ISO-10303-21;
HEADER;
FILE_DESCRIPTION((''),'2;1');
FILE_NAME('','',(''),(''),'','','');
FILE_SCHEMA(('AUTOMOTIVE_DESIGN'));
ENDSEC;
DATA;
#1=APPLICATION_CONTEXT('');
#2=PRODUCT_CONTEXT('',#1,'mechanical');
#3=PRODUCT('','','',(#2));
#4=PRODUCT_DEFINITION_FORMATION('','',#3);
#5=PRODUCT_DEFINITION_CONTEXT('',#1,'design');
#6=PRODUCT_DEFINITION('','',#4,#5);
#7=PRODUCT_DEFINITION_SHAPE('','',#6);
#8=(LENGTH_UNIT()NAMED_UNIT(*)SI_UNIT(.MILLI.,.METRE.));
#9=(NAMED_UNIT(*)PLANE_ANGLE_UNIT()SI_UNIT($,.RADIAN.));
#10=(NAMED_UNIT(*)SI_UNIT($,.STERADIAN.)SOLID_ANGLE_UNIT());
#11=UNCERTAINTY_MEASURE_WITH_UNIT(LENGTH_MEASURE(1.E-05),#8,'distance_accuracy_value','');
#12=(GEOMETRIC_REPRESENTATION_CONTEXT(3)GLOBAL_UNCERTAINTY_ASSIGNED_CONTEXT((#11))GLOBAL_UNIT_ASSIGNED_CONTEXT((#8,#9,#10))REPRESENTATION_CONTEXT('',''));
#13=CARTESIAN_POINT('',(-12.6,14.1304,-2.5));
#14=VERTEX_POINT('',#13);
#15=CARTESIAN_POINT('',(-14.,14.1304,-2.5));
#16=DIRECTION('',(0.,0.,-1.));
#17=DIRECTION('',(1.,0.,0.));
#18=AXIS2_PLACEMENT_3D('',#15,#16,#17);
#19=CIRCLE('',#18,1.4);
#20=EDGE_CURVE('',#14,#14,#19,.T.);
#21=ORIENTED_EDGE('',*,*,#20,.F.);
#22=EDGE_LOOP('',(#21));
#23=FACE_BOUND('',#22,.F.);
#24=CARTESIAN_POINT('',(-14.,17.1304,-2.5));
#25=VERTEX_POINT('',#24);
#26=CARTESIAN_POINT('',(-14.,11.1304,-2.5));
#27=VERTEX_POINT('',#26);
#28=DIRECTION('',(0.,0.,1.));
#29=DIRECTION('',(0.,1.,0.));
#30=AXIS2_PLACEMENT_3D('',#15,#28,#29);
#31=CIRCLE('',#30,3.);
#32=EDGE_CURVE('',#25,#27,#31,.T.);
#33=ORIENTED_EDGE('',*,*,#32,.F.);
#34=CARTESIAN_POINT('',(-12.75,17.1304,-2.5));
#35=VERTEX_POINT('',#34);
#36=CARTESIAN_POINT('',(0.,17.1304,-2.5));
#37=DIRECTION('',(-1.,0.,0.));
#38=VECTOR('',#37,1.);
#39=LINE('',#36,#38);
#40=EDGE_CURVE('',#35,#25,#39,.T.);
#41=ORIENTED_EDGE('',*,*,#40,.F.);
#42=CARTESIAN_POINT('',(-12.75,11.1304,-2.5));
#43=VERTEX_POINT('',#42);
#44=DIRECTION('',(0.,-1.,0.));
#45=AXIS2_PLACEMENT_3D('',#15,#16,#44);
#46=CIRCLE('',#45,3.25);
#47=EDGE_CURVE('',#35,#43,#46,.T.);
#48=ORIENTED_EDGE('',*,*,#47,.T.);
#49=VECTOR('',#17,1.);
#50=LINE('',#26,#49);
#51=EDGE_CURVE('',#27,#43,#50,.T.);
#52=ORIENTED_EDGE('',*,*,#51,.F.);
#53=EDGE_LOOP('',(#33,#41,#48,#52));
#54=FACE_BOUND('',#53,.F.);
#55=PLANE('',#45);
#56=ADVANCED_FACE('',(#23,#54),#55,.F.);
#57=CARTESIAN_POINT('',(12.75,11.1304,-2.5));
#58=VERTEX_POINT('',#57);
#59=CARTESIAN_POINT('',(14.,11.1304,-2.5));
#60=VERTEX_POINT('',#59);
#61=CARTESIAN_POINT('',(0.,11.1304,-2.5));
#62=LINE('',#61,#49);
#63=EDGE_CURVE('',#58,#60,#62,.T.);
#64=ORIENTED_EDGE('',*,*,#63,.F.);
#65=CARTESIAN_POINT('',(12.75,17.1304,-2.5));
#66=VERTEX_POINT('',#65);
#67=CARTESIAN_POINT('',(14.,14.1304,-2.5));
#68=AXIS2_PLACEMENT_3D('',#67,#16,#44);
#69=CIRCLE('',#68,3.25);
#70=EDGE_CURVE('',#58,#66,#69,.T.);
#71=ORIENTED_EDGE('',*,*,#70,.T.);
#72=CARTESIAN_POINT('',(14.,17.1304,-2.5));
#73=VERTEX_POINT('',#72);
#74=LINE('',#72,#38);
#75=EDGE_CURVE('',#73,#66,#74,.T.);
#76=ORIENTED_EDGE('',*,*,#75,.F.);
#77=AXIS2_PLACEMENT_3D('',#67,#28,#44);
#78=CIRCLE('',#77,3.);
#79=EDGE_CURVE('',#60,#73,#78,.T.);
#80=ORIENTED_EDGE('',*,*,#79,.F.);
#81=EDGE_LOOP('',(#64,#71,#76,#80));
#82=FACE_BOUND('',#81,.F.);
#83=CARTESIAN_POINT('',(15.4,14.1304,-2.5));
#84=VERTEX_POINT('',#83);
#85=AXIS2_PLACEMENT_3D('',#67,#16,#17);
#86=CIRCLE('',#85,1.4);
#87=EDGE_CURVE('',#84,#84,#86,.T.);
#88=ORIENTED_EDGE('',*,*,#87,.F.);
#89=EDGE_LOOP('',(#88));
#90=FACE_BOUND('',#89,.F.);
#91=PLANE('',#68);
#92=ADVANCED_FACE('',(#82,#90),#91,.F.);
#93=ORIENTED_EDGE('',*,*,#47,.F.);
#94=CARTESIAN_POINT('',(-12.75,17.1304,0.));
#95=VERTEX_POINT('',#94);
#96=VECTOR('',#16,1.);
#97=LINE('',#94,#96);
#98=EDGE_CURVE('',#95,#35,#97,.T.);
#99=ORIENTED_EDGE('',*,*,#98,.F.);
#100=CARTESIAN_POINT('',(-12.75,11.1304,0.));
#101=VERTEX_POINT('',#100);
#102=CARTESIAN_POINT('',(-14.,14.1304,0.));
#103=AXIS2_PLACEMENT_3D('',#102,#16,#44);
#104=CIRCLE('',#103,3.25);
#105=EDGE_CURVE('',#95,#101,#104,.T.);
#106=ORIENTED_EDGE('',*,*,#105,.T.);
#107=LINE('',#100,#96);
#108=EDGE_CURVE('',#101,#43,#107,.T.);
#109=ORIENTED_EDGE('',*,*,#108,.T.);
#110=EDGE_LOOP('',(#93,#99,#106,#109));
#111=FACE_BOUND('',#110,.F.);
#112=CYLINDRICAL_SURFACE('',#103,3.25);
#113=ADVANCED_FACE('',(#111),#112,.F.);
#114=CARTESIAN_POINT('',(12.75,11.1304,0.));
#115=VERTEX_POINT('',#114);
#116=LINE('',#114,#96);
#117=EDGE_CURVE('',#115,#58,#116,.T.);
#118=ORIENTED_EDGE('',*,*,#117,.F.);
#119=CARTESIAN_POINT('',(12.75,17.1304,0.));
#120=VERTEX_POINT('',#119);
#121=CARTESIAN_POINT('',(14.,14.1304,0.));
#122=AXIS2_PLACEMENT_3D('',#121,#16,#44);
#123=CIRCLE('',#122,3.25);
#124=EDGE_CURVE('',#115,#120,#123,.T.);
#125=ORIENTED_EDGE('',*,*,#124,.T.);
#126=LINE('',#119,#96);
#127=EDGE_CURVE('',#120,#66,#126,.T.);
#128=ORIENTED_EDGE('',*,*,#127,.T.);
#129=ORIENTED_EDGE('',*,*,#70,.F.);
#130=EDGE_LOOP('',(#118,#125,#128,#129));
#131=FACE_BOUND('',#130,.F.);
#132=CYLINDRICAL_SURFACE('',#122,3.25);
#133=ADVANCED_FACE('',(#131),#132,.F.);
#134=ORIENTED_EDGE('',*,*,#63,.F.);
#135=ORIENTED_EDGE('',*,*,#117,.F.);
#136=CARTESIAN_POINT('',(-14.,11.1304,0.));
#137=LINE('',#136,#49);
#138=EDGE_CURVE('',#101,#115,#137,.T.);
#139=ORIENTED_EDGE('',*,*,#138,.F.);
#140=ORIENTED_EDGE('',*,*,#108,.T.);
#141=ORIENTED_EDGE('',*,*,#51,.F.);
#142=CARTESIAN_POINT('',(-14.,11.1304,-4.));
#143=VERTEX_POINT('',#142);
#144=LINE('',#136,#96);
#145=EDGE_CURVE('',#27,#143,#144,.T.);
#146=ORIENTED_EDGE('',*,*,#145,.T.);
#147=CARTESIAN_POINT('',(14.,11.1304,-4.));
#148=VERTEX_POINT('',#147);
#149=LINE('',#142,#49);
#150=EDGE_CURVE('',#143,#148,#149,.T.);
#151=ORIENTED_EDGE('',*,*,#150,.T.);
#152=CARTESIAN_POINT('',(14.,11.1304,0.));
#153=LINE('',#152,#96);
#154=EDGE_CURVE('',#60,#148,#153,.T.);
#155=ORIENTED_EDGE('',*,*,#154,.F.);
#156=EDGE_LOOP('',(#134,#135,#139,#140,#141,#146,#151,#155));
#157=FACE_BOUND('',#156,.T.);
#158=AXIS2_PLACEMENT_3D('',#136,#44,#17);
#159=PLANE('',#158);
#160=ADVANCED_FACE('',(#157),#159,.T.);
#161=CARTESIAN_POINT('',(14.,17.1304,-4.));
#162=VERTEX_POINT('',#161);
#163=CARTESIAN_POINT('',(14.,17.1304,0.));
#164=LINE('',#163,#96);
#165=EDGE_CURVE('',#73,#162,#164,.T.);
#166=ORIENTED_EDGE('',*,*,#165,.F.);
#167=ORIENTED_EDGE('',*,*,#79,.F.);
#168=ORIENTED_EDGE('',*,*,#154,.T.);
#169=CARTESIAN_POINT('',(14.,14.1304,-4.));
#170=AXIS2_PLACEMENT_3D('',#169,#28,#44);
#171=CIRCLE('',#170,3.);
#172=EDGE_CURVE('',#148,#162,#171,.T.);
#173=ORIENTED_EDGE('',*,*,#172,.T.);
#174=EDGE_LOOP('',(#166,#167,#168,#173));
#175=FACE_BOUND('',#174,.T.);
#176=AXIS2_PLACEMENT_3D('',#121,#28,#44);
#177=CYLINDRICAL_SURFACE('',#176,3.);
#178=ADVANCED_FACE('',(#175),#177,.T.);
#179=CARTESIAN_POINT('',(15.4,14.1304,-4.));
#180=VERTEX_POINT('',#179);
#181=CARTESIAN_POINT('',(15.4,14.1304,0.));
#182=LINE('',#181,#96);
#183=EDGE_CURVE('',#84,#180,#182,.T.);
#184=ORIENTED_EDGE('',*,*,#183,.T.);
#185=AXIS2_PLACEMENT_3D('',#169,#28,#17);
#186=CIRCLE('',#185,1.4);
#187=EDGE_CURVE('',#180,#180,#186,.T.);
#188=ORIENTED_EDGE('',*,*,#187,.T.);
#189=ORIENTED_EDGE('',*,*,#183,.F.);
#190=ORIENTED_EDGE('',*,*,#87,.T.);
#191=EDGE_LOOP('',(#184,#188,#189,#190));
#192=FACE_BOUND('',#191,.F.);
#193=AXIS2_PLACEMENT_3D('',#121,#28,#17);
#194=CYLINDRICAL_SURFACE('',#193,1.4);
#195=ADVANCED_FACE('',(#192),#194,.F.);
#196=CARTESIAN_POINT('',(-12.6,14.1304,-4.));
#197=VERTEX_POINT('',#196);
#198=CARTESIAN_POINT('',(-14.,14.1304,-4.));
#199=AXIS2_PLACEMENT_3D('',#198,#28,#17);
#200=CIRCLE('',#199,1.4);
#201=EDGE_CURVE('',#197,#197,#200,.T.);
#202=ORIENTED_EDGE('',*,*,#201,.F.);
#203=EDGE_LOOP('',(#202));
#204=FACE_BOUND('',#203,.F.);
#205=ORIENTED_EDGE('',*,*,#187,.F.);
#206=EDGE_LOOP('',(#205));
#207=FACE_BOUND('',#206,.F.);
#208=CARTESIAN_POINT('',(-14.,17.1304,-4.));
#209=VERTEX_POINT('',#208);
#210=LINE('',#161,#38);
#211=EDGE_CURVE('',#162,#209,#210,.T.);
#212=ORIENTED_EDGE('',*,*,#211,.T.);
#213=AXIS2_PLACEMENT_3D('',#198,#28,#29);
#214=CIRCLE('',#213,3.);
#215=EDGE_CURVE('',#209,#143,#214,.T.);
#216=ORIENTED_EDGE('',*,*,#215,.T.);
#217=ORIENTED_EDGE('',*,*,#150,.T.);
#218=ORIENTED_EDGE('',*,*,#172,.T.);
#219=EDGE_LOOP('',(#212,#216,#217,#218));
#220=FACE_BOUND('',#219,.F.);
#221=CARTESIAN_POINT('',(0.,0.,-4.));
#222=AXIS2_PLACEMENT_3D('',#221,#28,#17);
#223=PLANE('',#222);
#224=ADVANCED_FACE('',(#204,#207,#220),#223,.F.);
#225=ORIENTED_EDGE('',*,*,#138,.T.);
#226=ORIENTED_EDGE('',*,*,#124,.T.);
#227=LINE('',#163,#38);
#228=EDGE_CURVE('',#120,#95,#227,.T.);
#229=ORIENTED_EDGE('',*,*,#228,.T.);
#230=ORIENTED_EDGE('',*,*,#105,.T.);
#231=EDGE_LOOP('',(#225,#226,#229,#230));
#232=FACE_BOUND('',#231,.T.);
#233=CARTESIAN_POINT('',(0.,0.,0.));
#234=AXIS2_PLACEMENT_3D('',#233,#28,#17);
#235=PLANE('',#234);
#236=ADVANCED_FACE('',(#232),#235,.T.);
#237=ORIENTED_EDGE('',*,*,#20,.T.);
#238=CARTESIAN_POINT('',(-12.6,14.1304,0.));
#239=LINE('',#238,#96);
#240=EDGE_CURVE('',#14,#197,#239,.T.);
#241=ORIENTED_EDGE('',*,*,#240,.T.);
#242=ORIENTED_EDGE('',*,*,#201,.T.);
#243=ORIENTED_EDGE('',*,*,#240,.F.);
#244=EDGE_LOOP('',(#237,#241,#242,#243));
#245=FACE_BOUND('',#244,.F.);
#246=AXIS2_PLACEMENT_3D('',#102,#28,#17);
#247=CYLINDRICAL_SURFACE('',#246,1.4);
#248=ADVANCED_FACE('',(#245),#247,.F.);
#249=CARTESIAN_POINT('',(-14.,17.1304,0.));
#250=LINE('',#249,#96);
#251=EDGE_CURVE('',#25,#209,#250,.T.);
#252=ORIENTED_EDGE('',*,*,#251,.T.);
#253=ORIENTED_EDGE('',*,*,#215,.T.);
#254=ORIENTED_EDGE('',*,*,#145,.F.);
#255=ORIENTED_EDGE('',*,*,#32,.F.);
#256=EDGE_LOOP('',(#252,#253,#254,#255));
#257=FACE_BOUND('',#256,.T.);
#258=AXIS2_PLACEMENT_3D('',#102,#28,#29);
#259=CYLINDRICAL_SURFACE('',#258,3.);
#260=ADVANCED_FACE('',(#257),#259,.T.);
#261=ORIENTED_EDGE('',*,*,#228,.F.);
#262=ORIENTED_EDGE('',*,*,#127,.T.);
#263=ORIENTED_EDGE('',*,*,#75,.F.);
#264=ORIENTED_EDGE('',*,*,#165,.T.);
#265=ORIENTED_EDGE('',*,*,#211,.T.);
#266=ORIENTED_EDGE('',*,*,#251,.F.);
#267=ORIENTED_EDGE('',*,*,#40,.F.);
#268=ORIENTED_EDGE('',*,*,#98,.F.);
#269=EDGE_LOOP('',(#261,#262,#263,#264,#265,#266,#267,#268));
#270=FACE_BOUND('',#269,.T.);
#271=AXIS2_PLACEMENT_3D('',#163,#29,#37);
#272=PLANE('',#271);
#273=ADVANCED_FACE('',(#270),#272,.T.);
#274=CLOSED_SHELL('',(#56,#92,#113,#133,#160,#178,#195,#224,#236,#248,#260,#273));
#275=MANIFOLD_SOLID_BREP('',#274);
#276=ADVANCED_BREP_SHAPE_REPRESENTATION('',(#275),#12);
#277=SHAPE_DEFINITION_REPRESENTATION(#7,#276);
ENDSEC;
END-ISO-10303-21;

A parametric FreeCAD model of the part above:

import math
import FreeCAD as App
import Part
import Sketcher
Q = App.Units.Quantity

doc = App.newDocument("Part")
body = doc.addObject("PartDesign::Body", "Body")

sketch1 = body.newObject("Sketcher::SketchObject", "Sketch")
sketch1.AttachmentSupport = (doc.getObject("XY_Plane"), [""])
sketch1.MapMode = "FlatFace"
sketch1.addGeometry(Part.ArcOfCircle(Part.Circle(App.Vector(-14, 14.1, 0), App.Vector(0, 0, 1), 3), math.radians(90), math.radians(270)), False)
sketch1.addGeometry(Part.LineSegment(App.Vector(-14, 11.1, 0), App.Vector(14, 11.1, 0)), False)
sketch1.addGeometry(Part.ArcOfCircle(Part.Circle(App.Vector(14, 14.1, 0), App.Vector(0, 0, 1), 3), math.radians(-90), math.radians(90)), False)
sketch1.addGeometry(Part.LineSegment(App.Vector(14, 17.1, 0), App.Vector(-14, 17.1, 0)), False)
sketch1.addGeometry(Part.Circle(App.Vector(-14, 14.1, 0), App.Vector(0, 0, 1), 1.4), False)
sketch1.addGeometry(Part.Circle(App.Vector(14, 14.1, 0), App.Vector(0, 0, 1), 1.4), False)
sketch1.addConstraint(Sketcher.Constraint("Tangent", 0, 2, 1, 1))
sketch1.addConstraint(Sketcher.Constraint("Tangent", 1, 2, 2, 1))
sketch1.addConstraint(Sketcher.Constraint("Tangent", 2, 2, 3, 1))
sketch1.addConstraint(Sketcher.Constraint("Tangent", 3, 2, 0, 1))
sketch1.addConstraint(Sketcher.Constraint("Horizontal", 1))
sketch1.addConstraint(Sketcher.Constraint("Horizontal", 3))
sketch1.addConstraint(Sketcher.Constraint("Coincident", 4, 3, 0, 3))
sketch1.addConstraint(Sketcher.Constraint("Coincident", 5, 3, 2, 3))
sketch1.addConstraint(Sketcher.Constraint("Equal", 4, 5))
sketch1.addConstraint(Sketcher.Constraint("Radius", 0, Q("3 mm")))
sketch1.addConstraint(Sketcher.Constraint("Diameter", 4, Q("2.8 mm")))
sketch1.addConstraint(Sketcher.Constraint("DistanceX", 1, 1, 1, 2, Q("28 mm")))
sketch1.addConstraint(Sketcher.Constraint("DistanceX", 0, 3, -1, 1, Q("14 mm")))
sketch1.addConstraint(Sketcher.Constraint("DistanceY", -1, 1, 0, 3, Q("14.1304 mm")))
pad1 = body.newObject("PartDesign::Pad", "Pad")
pad1.Profile = sketch1
pad1.Length = 4
pad1.Reversed = True

sketch2 = body.newObject("Sketcher::SketchObject", "Sketch001")
sketch2.AttachmentSupport = (doc.getObject("XY_Plane"), [""])
sketch2.MapMode = "FlatFace"
sketch2.addGeometry(Part.Circle(App.Vector(-14, 14.1, 0), App.Vector(0, 0, 1), 1.4), False)
sketch2.addGeometry(Part.Circle(App.Vector(14, 14.1, 0), App.Vector(0, 0, 1), 1.4), False)
sketch2.addConstraint(Sketcher.Constraint("Equal", 0, 1))
sketch2.addConstraint(Sketcher.Constraint("Symmetric", 0, 3, 1, 3, -2))
sketch2.addConstraint(Sketcher.Constraint("Diameter", 0, Q("2.8 mm")))
sketch2.addConstraint(Sketcher.Constraint("DistanceX", 0, 3, -1, 1, Q("14 mm")))
sketch2.addConstraint(Sketcher.Constraint("DistanceY", -1, 1, 0, 3, Q("14.1304 mm")))
doc.recompute()
hole = body.newObject("PartDesign::Hole", "Hole")
hole.Profile = sketch2
hole.ThreadType = "None"
hole.Diameter = 2.8
hole.DepthType = "Dimension"
hole.Depth = 7
hole.DrillPoint = "Angled"
hole.DrillPointAngle = 118
hole.HoleCutType = "Counterbore"
hole.HoleCutDiameter = 6.5
hole.HoleCutDepth = 2.5

doc.recompute()
